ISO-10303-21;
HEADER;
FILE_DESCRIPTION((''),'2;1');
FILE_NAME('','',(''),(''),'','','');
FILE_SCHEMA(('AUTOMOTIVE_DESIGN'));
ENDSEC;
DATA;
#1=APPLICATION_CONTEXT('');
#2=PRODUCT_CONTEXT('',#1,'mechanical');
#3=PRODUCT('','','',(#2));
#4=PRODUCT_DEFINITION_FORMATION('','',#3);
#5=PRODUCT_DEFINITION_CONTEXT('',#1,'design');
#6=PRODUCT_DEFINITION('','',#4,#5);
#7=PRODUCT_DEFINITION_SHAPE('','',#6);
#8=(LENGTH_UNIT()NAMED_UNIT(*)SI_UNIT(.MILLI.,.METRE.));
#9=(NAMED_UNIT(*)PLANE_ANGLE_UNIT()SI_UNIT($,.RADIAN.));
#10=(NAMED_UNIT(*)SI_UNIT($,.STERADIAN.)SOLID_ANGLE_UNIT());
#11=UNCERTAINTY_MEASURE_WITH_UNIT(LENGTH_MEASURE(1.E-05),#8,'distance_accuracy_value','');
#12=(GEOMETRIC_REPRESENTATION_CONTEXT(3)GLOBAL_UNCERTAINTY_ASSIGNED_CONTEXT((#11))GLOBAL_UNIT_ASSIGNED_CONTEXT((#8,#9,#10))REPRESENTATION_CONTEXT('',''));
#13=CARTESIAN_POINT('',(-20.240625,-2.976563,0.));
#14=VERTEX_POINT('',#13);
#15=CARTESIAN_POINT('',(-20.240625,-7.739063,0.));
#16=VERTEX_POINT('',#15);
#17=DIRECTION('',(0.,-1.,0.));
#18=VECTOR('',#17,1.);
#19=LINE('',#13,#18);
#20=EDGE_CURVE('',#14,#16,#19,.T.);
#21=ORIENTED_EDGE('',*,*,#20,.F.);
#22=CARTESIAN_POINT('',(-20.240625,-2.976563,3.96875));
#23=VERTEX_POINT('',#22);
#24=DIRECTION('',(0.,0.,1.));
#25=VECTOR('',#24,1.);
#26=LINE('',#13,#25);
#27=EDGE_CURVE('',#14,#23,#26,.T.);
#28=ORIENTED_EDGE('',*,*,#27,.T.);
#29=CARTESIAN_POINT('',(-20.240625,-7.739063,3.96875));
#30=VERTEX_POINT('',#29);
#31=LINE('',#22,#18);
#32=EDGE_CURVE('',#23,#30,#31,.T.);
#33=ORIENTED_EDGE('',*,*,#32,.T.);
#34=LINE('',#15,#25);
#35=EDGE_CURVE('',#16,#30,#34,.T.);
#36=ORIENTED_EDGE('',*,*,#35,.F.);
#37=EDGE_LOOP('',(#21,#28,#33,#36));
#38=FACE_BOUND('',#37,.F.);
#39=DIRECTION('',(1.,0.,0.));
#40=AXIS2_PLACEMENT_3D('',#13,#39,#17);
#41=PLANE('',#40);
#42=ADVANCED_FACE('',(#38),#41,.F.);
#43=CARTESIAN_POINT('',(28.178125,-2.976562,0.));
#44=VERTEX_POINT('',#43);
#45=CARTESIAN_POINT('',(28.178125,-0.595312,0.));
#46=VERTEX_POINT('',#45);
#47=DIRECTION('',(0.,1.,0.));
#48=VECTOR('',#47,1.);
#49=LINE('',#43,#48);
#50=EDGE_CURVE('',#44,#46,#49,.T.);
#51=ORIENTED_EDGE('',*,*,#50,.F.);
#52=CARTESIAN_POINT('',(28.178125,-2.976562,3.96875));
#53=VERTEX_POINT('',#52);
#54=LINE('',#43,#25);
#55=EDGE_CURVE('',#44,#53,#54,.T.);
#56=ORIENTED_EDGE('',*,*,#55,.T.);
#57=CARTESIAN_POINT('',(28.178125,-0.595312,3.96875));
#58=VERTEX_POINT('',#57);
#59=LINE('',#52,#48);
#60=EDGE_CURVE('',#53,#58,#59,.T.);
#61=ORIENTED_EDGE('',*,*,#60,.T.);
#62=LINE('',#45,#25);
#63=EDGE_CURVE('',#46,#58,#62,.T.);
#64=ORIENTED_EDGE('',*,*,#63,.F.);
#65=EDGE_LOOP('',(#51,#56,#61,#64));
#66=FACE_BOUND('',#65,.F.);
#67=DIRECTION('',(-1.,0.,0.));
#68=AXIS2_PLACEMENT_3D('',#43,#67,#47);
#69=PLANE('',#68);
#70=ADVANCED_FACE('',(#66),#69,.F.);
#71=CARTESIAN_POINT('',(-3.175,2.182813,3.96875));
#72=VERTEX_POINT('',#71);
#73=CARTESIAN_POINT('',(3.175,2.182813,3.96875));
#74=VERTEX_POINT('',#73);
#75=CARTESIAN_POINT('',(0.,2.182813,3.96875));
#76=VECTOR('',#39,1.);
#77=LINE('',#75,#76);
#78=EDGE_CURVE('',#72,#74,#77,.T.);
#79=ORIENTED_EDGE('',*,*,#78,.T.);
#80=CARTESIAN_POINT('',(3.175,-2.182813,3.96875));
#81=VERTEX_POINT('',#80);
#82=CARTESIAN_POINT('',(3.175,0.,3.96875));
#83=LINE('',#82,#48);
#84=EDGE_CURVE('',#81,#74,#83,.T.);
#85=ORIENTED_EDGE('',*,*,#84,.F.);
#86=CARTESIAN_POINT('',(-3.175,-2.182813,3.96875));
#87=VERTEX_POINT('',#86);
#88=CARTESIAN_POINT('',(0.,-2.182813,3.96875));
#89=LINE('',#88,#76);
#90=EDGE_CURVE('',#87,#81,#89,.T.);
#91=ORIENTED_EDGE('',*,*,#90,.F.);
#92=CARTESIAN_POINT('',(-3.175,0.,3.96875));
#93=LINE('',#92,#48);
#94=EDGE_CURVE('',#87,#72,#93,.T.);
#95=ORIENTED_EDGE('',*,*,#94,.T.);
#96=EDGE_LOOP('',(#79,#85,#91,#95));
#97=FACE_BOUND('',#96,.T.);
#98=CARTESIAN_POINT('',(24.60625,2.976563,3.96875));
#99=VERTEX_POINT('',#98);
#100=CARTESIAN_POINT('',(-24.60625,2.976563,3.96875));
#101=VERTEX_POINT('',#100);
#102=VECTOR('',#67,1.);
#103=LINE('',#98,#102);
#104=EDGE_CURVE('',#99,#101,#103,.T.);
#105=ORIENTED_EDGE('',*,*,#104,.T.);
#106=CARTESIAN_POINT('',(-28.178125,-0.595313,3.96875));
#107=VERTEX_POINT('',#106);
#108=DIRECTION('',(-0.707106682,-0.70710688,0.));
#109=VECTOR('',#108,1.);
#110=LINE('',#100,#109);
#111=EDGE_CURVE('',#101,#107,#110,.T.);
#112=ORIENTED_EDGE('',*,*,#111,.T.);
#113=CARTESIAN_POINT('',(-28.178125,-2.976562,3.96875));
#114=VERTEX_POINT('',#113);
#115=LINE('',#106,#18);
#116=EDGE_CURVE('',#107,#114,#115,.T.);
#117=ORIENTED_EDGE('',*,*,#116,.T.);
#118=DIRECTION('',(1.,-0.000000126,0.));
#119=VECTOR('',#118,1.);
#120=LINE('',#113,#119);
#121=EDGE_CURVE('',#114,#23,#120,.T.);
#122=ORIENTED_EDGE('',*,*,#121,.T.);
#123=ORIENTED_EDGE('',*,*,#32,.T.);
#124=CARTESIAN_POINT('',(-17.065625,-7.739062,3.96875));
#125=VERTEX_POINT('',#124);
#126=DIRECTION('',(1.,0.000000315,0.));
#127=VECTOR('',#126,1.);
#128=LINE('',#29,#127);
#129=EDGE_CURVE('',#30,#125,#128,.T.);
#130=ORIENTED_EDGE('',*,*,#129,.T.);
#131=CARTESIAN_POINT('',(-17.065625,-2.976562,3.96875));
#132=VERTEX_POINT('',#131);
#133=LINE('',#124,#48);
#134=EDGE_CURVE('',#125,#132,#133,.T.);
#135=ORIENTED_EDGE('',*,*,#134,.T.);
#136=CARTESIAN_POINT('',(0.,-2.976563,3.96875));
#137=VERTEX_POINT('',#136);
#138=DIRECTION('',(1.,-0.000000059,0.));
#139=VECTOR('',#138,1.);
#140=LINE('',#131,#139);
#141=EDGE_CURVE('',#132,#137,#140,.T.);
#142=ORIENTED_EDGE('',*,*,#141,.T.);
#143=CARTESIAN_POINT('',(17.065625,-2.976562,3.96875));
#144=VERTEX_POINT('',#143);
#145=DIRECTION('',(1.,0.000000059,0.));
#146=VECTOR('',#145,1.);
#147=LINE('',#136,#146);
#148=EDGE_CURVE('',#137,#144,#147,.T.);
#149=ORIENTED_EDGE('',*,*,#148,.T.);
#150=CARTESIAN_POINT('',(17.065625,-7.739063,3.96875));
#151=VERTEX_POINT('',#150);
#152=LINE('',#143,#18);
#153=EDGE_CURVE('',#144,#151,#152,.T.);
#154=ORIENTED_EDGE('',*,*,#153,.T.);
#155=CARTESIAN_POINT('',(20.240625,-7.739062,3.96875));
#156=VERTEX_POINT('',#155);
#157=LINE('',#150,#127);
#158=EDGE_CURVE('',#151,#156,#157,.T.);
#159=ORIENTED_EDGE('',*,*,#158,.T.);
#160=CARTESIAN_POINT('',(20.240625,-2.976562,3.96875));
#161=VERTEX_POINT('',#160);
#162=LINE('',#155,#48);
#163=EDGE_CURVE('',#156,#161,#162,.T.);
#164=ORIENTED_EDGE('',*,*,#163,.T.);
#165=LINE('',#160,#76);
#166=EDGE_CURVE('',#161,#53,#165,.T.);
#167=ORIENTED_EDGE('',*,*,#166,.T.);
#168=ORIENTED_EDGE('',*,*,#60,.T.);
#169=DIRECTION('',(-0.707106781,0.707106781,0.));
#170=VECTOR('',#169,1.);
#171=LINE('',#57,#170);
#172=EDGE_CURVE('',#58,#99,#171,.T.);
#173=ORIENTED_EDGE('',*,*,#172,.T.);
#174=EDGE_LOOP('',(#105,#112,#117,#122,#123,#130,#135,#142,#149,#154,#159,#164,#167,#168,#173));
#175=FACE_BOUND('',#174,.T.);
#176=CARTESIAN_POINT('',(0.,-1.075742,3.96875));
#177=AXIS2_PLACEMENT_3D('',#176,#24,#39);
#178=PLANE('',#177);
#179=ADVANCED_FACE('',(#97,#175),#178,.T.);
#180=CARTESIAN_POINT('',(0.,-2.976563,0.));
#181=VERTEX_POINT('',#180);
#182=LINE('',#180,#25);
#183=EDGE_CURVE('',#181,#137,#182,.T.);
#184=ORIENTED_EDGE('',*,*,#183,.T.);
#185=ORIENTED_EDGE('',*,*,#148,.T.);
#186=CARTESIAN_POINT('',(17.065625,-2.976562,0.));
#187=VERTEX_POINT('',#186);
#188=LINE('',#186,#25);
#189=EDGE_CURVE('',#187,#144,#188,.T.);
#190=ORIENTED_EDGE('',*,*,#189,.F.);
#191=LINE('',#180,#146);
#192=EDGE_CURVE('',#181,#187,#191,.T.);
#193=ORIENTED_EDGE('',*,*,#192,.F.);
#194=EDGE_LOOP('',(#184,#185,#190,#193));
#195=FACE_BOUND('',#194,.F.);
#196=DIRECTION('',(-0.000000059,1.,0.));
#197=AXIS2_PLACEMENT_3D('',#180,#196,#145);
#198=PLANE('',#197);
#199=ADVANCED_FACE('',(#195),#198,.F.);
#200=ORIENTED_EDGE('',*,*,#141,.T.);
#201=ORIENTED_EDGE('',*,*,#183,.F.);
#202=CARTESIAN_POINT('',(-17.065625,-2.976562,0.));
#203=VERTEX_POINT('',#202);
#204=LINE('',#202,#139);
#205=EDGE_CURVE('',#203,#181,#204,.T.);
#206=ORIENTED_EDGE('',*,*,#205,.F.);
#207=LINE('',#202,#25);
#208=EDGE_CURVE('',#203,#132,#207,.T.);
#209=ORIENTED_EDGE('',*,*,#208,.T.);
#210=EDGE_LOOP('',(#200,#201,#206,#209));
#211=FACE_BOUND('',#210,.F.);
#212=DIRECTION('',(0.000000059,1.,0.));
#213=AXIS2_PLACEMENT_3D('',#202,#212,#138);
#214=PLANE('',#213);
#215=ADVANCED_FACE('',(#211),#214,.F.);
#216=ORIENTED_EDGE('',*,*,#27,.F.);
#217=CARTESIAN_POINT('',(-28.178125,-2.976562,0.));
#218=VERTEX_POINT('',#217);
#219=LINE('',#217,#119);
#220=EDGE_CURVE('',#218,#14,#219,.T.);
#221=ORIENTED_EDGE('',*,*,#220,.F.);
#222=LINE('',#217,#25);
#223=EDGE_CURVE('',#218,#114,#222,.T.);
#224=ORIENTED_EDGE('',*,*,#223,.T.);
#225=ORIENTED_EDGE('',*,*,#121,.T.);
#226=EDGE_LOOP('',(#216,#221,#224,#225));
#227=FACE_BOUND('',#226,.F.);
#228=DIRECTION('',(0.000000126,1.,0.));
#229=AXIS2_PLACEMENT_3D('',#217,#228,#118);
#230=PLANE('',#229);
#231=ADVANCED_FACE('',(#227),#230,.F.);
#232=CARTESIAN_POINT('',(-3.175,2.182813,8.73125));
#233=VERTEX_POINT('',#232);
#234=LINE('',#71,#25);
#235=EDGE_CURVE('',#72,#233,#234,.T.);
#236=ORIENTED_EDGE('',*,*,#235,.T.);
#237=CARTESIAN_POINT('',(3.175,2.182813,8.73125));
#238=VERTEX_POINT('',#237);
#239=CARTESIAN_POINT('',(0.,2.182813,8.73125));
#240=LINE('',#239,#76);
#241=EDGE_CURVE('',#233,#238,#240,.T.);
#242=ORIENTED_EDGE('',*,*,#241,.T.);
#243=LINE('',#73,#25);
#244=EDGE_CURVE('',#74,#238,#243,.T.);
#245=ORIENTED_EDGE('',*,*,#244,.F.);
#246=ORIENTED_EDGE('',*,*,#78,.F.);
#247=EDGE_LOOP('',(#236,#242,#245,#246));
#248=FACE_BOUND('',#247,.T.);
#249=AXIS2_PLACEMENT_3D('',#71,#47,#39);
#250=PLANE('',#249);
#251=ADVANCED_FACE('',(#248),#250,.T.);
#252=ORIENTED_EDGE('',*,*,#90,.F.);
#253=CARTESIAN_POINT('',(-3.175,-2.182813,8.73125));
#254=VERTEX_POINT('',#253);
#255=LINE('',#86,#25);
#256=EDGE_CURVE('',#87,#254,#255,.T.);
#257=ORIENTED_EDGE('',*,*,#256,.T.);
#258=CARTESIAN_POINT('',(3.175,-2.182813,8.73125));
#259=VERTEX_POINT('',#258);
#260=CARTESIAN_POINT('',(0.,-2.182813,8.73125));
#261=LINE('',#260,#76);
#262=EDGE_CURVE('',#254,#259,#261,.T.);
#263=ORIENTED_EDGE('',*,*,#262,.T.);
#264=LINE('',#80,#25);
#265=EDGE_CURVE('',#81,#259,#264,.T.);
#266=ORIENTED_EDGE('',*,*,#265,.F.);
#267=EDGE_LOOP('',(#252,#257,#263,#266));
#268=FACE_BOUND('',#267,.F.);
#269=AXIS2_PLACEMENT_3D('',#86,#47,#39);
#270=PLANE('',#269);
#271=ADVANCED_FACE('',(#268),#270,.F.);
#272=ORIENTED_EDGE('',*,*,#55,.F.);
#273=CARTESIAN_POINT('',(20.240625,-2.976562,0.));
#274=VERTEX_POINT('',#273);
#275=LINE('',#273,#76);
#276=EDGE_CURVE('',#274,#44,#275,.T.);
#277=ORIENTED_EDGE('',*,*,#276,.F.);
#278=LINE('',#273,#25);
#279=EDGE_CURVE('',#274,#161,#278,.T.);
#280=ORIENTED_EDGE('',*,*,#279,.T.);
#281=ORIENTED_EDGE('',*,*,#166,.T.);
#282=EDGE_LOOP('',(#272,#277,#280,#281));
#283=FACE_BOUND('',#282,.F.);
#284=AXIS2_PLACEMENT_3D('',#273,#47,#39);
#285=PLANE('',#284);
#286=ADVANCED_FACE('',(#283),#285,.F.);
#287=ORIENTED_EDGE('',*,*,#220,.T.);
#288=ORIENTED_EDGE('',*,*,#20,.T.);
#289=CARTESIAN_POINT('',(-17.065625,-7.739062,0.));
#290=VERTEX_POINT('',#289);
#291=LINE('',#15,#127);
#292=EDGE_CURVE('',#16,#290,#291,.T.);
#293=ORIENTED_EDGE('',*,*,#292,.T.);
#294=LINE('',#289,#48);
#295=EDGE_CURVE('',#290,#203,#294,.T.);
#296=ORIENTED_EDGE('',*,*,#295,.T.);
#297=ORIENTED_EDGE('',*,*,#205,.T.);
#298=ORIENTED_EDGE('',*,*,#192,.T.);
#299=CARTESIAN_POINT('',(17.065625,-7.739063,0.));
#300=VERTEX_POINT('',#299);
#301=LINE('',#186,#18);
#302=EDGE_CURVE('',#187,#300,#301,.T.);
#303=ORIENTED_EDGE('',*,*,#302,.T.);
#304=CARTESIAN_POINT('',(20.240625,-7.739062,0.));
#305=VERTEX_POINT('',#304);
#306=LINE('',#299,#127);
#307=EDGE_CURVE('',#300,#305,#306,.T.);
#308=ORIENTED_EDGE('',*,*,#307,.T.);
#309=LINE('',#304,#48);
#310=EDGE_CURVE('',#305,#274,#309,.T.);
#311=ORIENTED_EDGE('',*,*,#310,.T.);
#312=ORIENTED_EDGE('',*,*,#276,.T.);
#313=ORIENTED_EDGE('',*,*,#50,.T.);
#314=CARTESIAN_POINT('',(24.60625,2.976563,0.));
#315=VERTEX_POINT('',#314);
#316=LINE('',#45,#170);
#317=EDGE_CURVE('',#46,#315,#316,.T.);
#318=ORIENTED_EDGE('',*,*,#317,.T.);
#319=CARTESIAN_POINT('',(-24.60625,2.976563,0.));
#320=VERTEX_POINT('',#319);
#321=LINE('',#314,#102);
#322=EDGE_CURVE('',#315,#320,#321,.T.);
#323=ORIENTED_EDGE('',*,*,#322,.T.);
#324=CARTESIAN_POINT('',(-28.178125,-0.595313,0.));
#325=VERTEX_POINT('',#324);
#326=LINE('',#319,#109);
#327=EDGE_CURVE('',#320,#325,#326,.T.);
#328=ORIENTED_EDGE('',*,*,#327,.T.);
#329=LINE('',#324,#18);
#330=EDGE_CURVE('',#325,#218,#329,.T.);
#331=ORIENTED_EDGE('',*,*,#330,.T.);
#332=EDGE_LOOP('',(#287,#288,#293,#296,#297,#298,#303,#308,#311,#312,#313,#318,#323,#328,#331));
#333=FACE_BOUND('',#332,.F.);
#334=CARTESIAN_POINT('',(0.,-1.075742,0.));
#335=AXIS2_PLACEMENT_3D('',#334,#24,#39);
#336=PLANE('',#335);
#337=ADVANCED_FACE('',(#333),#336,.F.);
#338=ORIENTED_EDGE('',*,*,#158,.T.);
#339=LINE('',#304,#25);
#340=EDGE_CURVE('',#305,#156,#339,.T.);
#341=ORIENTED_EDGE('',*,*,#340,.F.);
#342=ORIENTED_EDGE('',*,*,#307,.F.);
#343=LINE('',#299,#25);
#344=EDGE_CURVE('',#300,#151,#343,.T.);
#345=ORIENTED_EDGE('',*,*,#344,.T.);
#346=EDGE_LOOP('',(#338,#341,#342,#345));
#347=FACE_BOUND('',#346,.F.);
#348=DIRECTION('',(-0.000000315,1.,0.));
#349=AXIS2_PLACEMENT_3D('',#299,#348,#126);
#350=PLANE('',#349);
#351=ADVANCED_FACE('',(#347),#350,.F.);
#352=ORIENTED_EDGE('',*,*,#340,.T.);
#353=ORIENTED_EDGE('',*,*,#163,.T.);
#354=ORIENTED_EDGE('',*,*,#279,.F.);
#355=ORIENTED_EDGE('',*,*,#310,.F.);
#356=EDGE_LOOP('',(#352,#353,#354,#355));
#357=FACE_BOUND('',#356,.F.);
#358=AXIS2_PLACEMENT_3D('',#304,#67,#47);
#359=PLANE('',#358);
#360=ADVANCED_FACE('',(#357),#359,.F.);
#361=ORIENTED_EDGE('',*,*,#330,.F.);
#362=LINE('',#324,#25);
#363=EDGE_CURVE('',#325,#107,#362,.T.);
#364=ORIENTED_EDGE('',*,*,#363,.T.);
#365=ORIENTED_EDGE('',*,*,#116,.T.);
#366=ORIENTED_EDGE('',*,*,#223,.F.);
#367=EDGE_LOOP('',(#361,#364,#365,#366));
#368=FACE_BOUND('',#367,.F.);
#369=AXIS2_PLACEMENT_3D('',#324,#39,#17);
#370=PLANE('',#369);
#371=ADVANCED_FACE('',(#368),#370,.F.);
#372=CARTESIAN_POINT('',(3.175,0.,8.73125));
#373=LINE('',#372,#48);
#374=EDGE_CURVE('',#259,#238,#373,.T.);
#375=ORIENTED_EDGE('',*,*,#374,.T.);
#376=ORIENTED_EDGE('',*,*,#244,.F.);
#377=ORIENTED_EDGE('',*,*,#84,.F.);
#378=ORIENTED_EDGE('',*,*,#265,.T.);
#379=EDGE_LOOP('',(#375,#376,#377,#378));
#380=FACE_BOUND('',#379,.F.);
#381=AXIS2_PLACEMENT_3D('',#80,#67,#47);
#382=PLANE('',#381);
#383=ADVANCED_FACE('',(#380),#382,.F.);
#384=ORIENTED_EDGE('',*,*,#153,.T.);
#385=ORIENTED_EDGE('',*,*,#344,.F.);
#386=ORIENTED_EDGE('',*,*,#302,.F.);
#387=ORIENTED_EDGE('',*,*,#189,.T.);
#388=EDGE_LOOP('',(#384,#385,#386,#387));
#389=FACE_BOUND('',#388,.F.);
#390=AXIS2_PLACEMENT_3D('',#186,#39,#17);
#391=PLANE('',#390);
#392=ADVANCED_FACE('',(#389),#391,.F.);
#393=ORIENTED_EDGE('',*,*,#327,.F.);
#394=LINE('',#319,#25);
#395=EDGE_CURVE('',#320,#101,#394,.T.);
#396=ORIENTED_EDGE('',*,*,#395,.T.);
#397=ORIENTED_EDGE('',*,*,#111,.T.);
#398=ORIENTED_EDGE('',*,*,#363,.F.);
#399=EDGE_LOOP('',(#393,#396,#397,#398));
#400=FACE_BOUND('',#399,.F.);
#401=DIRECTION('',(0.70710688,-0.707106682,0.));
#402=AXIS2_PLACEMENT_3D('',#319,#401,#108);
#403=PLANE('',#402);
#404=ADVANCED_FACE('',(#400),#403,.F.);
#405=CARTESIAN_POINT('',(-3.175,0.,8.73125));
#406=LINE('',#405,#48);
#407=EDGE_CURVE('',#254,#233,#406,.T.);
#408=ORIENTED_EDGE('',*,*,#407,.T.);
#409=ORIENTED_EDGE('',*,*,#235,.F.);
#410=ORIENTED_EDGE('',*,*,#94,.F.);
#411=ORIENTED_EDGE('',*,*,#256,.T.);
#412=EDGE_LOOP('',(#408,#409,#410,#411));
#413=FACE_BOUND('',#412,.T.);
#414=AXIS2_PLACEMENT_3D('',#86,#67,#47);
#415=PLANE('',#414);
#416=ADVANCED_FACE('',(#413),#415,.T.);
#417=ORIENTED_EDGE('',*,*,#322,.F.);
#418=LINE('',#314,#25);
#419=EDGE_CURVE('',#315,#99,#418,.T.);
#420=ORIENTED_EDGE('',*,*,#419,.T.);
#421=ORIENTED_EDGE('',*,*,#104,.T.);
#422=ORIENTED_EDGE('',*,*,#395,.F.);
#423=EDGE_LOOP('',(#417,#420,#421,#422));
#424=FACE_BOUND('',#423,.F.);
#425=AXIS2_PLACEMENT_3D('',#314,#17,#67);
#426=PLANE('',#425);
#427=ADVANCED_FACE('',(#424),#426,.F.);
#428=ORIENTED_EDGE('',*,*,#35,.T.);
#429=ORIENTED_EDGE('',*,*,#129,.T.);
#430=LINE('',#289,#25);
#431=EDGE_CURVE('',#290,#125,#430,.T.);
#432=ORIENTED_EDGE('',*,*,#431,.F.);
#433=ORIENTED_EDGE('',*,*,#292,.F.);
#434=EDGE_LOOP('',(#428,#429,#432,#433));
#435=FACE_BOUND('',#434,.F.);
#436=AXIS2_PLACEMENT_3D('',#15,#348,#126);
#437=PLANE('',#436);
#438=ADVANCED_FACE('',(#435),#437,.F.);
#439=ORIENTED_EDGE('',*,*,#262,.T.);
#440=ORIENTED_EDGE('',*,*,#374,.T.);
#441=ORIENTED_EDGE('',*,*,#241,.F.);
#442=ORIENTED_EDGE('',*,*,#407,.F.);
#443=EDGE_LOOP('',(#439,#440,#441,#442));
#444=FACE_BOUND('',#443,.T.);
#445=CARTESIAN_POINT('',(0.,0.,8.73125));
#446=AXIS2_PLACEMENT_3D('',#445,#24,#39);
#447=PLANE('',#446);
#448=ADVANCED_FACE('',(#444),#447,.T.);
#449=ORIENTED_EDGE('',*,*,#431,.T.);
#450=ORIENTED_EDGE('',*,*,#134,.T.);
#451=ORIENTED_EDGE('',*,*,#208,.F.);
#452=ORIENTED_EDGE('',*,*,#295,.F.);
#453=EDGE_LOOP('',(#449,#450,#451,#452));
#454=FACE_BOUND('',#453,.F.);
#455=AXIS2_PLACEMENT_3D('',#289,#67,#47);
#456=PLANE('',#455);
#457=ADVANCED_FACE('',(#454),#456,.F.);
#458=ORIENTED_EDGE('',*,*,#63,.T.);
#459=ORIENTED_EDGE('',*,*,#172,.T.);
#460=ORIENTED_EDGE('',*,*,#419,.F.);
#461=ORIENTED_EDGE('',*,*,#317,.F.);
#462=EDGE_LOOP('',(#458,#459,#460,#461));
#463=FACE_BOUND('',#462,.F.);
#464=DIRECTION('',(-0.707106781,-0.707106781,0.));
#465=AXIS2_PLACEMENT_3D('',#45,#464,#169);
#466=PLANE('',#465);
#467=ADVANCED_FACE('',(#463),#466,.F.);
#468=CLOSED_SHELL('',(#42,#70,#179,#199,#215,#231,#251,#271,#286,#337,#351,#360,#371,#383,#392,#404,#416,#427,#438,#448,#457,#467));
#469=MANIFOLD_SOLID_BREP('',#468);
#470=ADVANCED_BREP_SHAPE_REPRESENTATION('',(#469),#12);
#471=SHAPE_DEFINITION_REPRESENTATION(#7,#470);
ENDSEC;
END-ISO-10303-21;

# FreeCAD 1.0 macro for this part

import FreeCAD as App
import Part
import Sketcher
from FreeCAD import Vector
Q = App.Units.Quantity


def add_polygon(sketch, points):
    """Adds a closed chain of lines whose ends are joined by coincident constraints."""
    first, n = sketch.GeometryCount, len(points)
    for a, b in zip(points, points[1:] + points[:1]):
        sketch.addGeometry(Part.LineSegment(App.Vector(*a, 0), App.Vector(*b, 0)), False)
    for i in range(n):
        sketch.addConstraint(Sketcher.Constraint("Coincident", first + i, 2, first + (i + 1) % n, 1))

doc = App.newDocument("Part")
body = doc.addObject("PartDesign::Body", "Body")

# Sketch on XY plane
sketch1 = body.newObject("Sketcher::SketchObject", "Sketch")
sketch1.AttachmentSupport = (doc.getObject("XY_Plane"), [""])
sketch1.MapMode = "FlatFace"
add_polygon(sketch1, [(24.6, 3), (-24.6, 3), (-28.2, -0.6), (-28.2, -3), (-20.2, -3), (-20.2, -7.7), (-17.1, -7.7), (-17.1, -3), (0, -3), (17.1, -3), (17.1, -7.7), (20.2, -7.7), (20.2, -3), (28.2, -3), (28.2, -0.6)])  # lines 0-14
sketch1.addConstraint([
    Sketcher.Constraint("Horizontal", 0),
    Sketcher.Constraint("Vertical", 2),
    Sketcher.Constraint("Horizontal", 3),
    Sketcher.Constraint("Vertical", 4),
    Sketcher.Constraint("Horizontal", 5),
    Sketcher.Constraint("Vertical", 6),
    Sketcher.Constraint("Horizontal", 7),
    Sketcher.Constraint("Horizontal", 8),
    Sketcher.Constraint("Vertical", 9),
    Sketcher.Constraint("Horizontal", 10),
    Sketcher.Constraint("Vertical", 11),
    Sketcher.Constraint("Horizontal", 12),
    Sketcher.Constraint("Vertical", 13),
    Sketcher.Constraint("Symmetric", 5, 2, 9, 2, -2),
    Sketcher.Constraint("Symmetric", 3, 2, 11, 2, -2),
    Sketcher.Constraint("Symmetric", 1, 2, 13, 2, -2),
    Sketcher.Constraint("PointOnObject", 7, 2, -2),
    Sketcher.Constraint("Perpendicular", 1, 14),
    Sketcher.Constraint("Horizontal", 3, 2, 6, 2),
    Sketcher.Constraint("Equal", 1, 14),
    Sketcher.Constraint("DistanceX", 0, 2, 0, 1, Q("1.9375 in")),
    Sketcher.Constraint("DistanceX", 3, 1, 3, 2, Q("0.3125 in")),
    Sketcher.Constraint("DistanceX", 5, 1, 5, 2, Q("0.125 in")),
    Sketcher.Constraint("DistanceX", 7, 1, 7, 2, Q("0.671875 in")),
    Sketcher.Constraint("DistanceY", 2, 2, 2, 1, Q("0.09375 in")),
    Sketcher.Constraint("DistanceY", 4, 2, 4, 1, Q("0.1875 in")),
    Sketcher.Constraint("DistanceY", 2, 2, -1, 1, Q("2.976562 mm")),
])
pad1 = body.newObject("PartDesign::Pad", "Pad")
pad1.Profile = sketch1
pad1.Length = Q("0.15625 in")

# Sketch on XY plane
sketch2 = body.newObject("Sketcher::SketchObject", "Sketch001")
sketch2.AttachmentSupport = (doc.getObject("XY_Plane"), [""])
sketch2.MapMode = "FlatFace"
sketch2.AttachmentOffset = App.Placement(Vector(0, 0, 0.15625 * 25.4), App.Rotation())
add_polygon(sketch2, [(-3.2, 2.2), (-3.2, -2.2), (3.2, -2.2), (3.2, 2.2)])  # lines 0-3
sketch2.addConstraint([
    Sketcher.Constraint("Vertical", 0),
    Sketcher.Constraint("Horizontal", 1),
    Sketcher.Constraint("Vertical", 2),
    Sketcher.Constraint("Horizontal", 3),
    Sketcher.Constraint("Symmetric", 0, 2, 2, 2, -1, 1),
    Sketcher.Constraint("DistanceX", 1, 1, 1, 2, Q("0.25 in")),
    Sketcher.Constraint("DistanceY", 0, 2, 0, 1, Q("0.171875 in")),
])
pad2 = body.newObject("PartDesign::Pad", "Pad001")
pad2.Profile = sketch2
pad2.Length = Q("0.1875 in")

doc.recompute()
